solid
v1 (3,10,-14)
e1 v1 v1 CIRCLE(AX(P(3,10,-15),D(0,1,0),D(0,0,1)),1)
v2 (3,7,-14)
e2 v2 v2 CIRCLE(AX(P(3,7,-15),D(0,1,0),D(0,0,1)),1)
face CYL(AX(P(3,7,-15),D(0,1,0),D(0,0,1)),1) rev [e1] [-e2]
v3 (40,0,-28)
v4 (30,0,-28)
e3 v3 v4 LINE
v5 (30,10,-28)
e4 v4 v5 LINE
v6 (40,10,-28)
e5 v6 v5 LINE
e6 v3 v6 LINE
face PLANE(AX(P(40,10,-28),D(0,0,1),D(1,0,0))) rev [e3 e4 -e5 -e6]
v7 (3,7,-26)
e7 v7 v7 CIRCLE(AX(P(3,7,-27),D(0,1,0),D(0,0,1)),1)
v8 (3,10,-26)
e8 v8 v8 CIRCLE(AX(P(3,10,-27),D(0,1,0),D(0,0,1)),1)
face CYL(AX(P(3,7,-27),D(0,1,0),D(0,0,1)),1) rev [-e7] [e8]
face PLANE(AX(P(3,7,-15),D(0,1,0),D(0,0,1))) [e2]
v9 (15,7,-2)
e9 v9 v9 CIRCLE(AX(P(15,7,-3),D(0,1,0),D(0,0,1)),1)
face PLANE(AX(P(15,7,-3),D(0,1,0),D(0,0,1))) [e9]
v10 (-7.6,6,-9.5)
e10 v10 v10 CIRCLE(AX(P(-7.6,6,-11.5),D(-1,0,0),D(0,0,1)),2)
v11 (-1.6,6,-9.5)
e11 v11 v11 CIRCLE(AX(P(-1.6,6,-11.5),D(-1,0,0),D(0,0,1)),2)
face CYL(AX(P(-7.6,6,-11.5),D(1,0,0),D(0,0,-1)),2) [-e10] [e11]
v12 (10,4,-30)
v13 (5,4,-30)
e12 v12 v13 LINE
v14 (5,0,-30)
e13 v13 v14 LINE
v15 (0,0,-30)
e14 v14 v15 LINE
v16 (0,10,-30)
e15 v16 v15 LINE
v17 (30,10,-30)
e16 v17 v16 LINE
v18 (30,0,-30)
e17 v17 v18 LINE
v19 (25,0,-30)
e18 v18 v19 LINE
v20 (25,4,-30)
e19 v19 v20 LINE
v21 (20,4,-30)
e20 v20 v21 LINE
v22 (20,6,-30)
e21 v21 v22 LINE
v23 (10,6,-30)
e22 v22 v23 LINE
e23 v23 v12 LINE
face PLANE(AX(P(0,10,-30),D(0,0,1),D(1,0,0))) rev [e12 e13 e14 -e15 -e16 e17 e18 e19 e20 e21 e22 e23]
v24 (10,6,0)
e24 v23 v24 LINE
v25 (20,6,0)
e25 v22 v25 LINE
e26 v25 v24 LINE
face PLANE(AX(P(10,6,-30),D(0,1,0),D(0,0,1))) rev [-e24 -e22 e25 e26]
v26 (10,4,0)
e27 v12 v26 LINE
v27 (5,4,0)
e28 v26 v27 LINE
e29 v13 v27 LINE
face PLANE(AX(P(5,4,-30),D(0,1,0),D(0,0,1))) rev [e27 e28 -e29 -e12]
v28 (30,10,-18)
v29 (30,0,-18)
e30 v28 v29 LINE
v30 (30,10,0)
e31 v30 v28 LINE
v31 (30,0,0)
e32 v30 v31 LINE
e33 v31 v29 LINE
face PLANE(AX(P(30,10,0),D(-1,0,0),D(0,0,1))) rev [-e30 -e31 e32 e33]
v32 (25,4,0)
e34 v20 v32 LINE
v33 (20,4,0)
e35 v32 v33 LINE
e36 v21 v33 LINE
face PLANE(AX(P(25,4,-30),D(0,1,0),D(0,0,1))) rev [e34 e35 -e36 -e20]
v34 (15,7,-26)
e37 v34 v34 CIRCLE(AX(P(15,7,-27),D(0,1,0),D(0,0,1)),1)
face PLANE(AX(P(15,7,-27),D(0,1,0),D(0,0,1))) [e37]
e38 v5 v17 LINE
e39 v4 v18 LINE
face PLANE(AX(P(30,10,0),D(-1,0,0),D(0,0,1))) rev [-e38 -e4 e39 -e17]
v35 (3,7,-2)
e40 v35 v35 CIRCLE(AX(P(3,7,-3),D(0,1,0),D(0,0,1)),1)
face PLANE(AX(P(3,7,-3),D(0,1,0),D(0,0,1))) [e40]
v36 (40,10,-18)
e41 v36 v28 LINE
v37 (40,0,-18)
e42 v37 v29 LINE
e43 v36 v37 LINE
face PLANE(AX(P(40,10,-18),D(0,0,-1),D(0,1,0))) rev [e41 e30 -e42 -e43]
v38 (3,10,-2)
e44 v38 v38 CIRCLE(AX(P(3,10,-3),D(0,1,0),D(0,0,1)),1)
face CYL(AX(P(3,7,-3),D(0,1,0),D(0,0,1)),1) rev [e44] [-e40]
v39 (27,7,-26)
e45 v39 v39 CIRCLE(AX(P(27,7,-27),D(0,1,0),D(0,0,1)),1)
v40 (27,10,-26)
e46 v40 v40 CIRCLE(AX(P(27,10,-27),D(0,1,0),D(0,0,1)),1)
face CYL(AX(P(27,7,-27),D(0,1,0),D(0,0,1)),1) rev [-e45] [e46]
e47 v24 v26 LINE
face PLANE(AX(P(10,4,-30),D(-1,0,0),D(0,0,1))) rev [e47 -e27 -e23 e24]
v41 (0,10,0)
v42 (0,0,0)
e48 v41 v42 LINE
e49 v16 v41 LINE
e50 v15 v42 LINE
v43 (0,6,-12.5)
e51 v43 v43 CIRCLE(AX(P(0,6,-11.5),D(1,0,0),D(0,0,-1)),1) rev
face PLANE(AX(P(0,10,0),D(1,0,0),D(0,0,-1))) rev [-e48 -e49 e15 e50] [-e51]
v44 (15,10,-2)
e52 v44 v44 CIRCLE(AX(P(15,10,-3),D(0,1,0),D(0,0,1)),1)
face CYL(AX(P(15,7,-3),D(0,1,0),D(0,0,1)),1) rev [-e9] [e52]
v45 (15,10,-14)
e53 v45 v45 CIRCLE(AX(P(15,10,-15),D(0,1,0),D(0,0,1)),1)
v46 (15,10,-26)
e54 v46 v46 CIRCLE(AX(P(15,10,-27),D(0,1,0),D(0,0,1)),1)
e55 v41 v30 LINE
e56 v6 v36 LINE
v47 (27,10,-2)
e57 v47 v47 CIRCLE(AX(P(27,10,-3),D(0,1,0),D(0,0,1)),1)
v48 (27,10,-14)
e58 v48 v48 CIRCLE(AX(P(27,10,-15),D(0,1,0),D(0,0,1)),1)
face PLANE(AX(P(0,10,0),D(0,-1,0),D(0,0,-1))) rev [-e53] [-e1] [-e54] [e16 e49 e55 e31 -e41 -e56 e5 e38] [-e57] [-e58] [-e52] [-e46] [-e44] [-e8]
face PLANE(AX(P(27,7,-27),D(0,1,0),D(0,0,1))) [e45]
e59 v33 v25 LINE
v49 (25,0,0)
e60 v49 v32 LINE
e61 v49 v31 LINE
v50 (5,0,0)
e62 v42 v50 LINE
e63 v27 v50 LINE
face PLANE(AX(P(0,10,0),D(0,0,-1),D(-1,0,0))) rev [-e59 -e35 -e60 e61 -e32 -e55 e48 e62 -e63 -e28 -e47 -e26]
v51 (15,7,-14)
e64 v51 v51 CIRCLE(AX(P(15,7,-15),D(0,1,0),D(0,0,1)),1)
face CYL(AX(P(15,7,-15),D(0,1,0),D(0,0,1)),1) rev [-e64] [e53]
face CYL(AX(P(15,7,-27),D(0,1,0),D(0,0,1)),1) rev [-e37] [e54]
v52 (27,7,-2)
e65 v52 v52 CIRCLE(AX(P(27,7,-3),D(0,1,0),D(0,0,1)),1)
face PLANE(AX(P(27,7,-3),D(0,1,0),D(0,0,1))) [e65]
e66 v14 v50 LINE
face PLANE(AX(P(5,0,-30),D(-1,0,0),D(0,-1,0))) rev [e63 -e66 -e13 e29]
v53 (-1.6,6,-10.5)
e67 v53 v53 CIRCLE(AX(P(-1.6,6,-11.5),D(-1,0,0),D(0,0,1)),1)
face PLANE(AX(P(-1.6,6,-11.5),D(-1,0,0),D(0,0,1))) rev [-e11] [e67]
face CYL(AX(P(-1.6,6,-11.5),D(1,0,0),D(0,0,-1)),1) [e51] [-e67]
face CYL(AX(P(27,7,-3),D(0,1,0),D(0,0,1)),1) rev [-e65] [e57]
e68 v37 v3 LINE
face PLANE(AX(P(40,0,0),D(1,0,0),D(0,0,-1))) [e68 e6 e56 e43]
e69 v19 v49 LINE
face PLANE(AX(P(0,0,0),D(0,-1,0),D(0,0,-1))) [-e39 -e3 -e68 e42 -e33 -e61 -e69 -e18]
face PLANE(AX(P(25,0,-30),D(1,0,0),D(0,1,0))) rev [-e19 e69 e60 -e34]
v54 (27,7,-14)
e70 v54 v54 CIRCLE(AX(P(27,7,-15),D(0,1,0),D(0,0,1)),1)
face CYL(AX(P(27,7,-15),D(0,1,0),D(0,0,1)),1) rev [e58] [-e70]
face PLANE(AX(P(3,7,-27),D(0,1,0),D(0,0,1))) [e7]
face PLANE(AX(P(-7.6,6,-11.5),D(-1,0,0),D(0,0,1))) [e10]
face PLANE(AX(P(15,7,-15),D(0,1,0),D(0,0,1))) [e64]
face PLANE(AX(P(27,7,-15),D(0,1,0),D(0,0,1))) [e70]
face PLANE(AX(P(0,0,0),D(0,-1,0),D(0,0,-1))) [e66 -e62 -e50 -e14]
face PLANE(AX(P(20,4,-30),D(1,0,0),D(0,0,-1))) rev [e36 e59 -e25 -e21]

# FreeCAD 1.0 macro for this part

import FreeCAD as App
import Part
import Sketcher
from FreeCAD import Vector

doc = App.newDocument("Part")
params = doc.addObject("Spreadsheet::Sheet", "Params")
for row, (alias, value) in enumerate([
    ("sketch1_width", "30 mm"),
    ("pad1_length", "10 mm"),
    ("sketch2_width", "20 mm"),
    ("sketch2_width2", "5 mm"),
    ("sketch2_height", "4 mm"),
    ("sketch2_height2", "2 mm"),
    ("sketch3_diameter", "2 mm"),
    ("pocket2_length", "3 mm"),
    ("sketch4_width", "10 mm"),
    ("pad2_length", "10 mm"),
    ("sketch5_diameter", "2 mm"),
    ("pad3_length", "1.6 mm"),
    ("sketch6_diameter", "4 mm"),
    ("pad4_length", "6 mm"),
], start=1):
    params.set(f"A{row}", alias)
    params.set(f"B{row}", "=" + value)
    params.setAlias(f"B{row}", alias)

body = doc.addObject("PartDesign::Body", "Body")

sketch1 = body.newObject("Sketcher::SketchObject", "Sketch")
sketch1.AttachmentSupport = (doc.getObject("XZ_Plane"), [""])
sketch1.MapMode = "FlatFace"
sketch1.addGeometry([
    Part.LineSegment(Vector(0, -30, 0), Vector(0, 0, 0)),
    Part.LineSegment(Vector(0, 0, 0), Vector(30, 0, 0)),
    Part.LineSegment(Vector(30, 0, 0), Vector(30, -30, 0)),
    Part.LineSegment(Vector(30, -30, 0), Vector(0, -30, 0)),
], False)
sketch1.addConstraint([
    Sketcher.Constraint("Coincident", 0, 2, 1, 1),
    Sketcher.Constraint("Coincident", 1, 2, 2, 1),
    Sketcher.Constraint("Coincident", 2, 2, 3, 1),
    Sketcher.Constraint("Coincident", 3, 2, 0, 1),
    Sketcher.Constraint("Vertical", 0),
    Sketcher.Constraint("Horizontal", 1),
    Sketcher.Constraint("Vertical", 2),
    Sketcher.Constraint("Horizontal", 3),
    Sketcher.Constraint("Coincident", 0, 2, -1, 1),
    Sketcher.Constraint("Equal", 3, 0),
    Sketcher.Constraint("DistanceX", 1, 1, 1, 2, 30.0),
])
sketch1.setExpression("Constraints[10]", "Params.sketch1_width")
pad1 = body.newObject("PartDesign::Pad", "Pad")
pad1.Profile = sketch1
pad1.setExpression("Length", "Params.pad1_length")
pad1.Reversed = True

sketch2 = body.newObject("Sketcher::SketchObject", "Sketch001")
sketch2.AttachmentSupport = (doc.getObject("XY_Plane"), [""])
sketch2.MapMode = "FlatFace"
sketch2.addGeometry([
    Part.LineSegment(Vector(5, 4, 0), Vector(5, 0, 0)),
    Part.LineSegment(Vector(5, 0, 0), Vector(25, 0, 0)),
    Part.LineSegment(Vector(25, 0, 0), Vector(25, 4, 0)),
    Part.LineSegment(Vector(25, 4, 0), Vector(20, 4, 0)),
    Part.LineSegment(Vector(20, 4, 0), Vector(20, 6, 0)),
    Part.LineSegment(Vector(20, 6, 0), Vector(10, 6, 0)),
    Part.LineSegment(Vector(10, 6, 0), Vector(10, 4, 0)),
    Part.LineSegment(Vector(10, 4, 0), Vector(5, 4, 0)),
], False)
sketch2.addConstraint([
    Sketcher.Constraint("Coincident", 0, 2, 1, 1),
    Sketcher.Constraint("Coincident", 1, 2, 2, 1),
    Sketcher.Constraint("Coincident", 2, 2, 3, 1),
    Sketcher.Constraint("Coincident", 3, 2, 4, 1),
    Sketcher.Constraint("Coincident", 4, 2, 5, 1),
    Sketcher.Constraint("Coincident", 5, 2, 6, 1),
    Sketcher.Constraint("Coincident", 6, 2, 7, 1),
    Sketcher.Constraint("Coincident", 7, 2, 0, 1),
    Sketcher.Constraint("Vertical", 0),
    Sketcher.Constraint("Horizontal", 1),
    Sketcher.Constraint("Vertical", 2),
    Sketcher.Constraint("Horizontal", 3),
    Sketcher.Constraint("Vertical", 4),
    Sketcher.Constraint("Horizontal", 5),
    Sketcher.Constraint("Vertical", 6),
    Sketcher.Constraint("Horizontal", 7),
    Sketcher.Constraint("PointOnObject", 0, 2, -1),
    Sketcher.Constraint("Horizontal", 3, 2, 6, 2),
    Sketcher.Constraint("Equal", 3, 7),
    Sketcher.Constraint("DistanceX", 1, 1, 1, 2, 20.0),
    Sketcher.Constraint("DistanceX", 3, 2, 3, 1, 5.0),
    Sketcher.Constraint("DistanceY", 0, 2, 0, 1, 4.0),
    Sketcher.Constraint("DistanceY", 4, 1, 4, 2, 2.0),
    Sketcher.Constraint("DistanceX", -1, 1, 0, 2, 5.0),
])
sketch2.setExpression("Constraints[19]", "Params.sketch2_width")
sketch2.setExpression("Constraints[20]", "Params.sketch2_width2")
sketch2.setExpression("Constraints[21]", "Params.sketch2_height")
sketch2.setExpression("Constraints[22]", "Params.sketch2_height2")
pocket1 = body.newObject("PartDesign::Pocket", "Pocket")
pocket1.Profile = sketch2
pocket1.Type = "ThroughAll"

sketch3 = body.newObject("Sketcher::SketchObject", "Sketch002")
sketch3.AttachmentSupport = (doc.getObject("XZ_Plane"), [""])
sketch3.MapMode = "FlatFace"
sketch3.AttachmentOffset = App.Placement(Vector(0, 0, -10), App.Rotation())
sketch3.addGeometry([
    Part.Circle(Vector(3, -27, 0), Vector(0, 0, 1), 1),
    Part.Circle(Vector(15, -27, 0), Vector(0, 0, 1), 1),
    Part.Circle(Vector(27, -27, 0), Vector(0, 0, 1), 1),
    Part.Circle(Vector(27, -15, 0), Vector(0, 0, 1), 1),
    Part.Circle(Vector(27, -3, 0), Vector(0, 0, 1), 1),
    Part.Circle(Vector(15, -3, 0), Vector(0, 0, 1), 1),
    Part.Circle(Vector(3, -3, 0), Vector(0, 0, 1), 1),
    Part.Circle(Vector(3, -15, 0), Vector(0, 0, 1), 1),
    Part.Circle(Vector(15, -15, 0), Vector(0, 0, 1), 1),
], False)
sketch3.addConstraint([
    Sketcher.Constraint("Equal", 0, 1),
    Sketcher.Constraint("Equal", 1, 2),
    Sketcher.Constraint("Equal", 2, 3),
    Sketcher.Constraint("Equal", 3, 4),
    Sketcher.Constraint("Equal", 4, 5),
    Sketcher.Constraint("Equal", 5, 6),
    Sketcher.Constraint("Equal", 6, 7),
    Sketcher.Constraint("Equal", 7, 8),
    Sketcher.Constraint("Horizontal", 0, 3, 1, 3),
    Sketcher.Constraint("Horizontal", 1, 3, 2, 3),
    Sketcher.Constraint("Horizontal", 4, 3, 5, 3),
    Sketcher.Constraint("Horizontal", 5, 3, 6, 3),
    Sketcher.Constraint("Horizontal", 3, 3, 7, 3),
    Sketcher.Constraint("Horizontal", 7, 3, 8, 3),
    Sketcher.Constraint("Vertical", 2, 3, 3, 3),
    Sketcher.Constraint("Vertical", 3, 3, 4, 3),
    Sketcher.Constraint("Vertical", 1, 3, 5, 3),
    Sketcher.Constraint("Vertical", 0, 3, 6, 3),
    Sketcher.Constraint("Vertical", 6, 3, 7, 3),
    Sketcher.Constraint("Vertical", 5, 3, 8, 3),
    Sketcher.Constraint("Diameter", 0, 2.0),
    Sketcher.Constraint("DistanceX", -1, 1, 0, 3, 3.0),
    Sketcher.Constraint("DistanceY", 0, 3, -1, 1, 27.0),
    Sketcher.Constraint("DistanceX", -1, 1, 1, 3, 15.0),
    Sketcher.Constraint("DistanceX", -1, 1, 2, 3, 27.0),
    Sketcher.Constraint("DistanceY", 3, 3, -1, 1, 15.0),
    Sketcher.Constraint("DistanceY", 4, 3, -1, 1, 3.0),
])
sketch3.setExpression("Constraints[20]", "Params.sketch3_diameter")
pocket2 = body.newObject("PartDesign::Pocket", "Pocket001")
pocket2.Profile = sketch3
pocket2.setExpression("Length", "Params.pocket2_length")
pocket2.Reversed = True

sketch4 = body.newObject("Sketcher::SketchObject", "Sketch003")
sketch4.AttachmentSupport = (doc.getObject("YZ_Plane"), [""])
sketch4.MapMode = "FlatFace"
sketch4.AttachmentOffset = App.Placement(Vector(0, 0, 30), App.Rotation())
sketch4.addGeometry([
    Part.LineSegment(Vector(10, -18, 0), Vector(0, -18, 0)),
    Part.LineSegment(Vector(0, -18, 0), Vector(0, -28, 0)),
    Part.LineSegment(Vector(0, -28, 0), Vector(10, -28, 0)),
    Part.LineSegment(Vector(10, -28, 0), Vector(10, -18, 0)),
], False)
sketch4.addConstraint([
    Sketcher.Constraint("Coincident", 0, 2, 1, 1),
    Sketcher.Constraint("Coincident", 1, 2, 2, 1),
    Sketcher.Constraint("Coincident", 2, 2, 3, 1),
    Sketcher.Constraint("Coincident", 3, 2, 0, 1),
    Sketcher.Constraint("Horizontal", 0),
    Sketcher.Constraint("Vertical", 1),
    Sketcher.Constraint("Horizontal", 2),
    Sketcher.Constraint("Vertical", 3),
    Sketcher.Constraint("PointOnObject", 0, 2, -2),
    Sketcher.Constraint("Equal", 2, 1),
    Sketcher.Constraint("DistanceX", 0, 2, 0, 1, 10.0),
    Sketcher.Constraint("DistanceY", 0, 2, -1, 1, 18.0),
])
sketch4.setExpression("Constraints[10]", "Params.sketch4_width")
pad2 = body.newObject("PartDesign::Pad", "Pad001")
pad2.Profile = sketch4
pad2.setExpression("Length", "Params.pad2_length")

sketch5 = body.newObject("Sketcher::SketchObject", "Sketch004")
sketch5.AttachmentSupport = (doc.getObject("YZ_Plane"), [""])
sketch5.MapMode = "FlatFace"
sketch5.addGeometry(Part.Circle(Vector(6, -11.5, 0), Vector(0, 0, 1), 1), False)
sketch5.addConstraint([
    Sketcher.Constraint("Diameter", 0, 2.0),
    Sketcher.Constraint("DistanceX", -1, 1, 0, 3, 6.0),
    Sketcher.Constraint("DistanceY", 0, 3, -1, 1, 11.5),
])
sketch5.setExpression("Constraints[0]", "Params.sketch5_diameter")
pad3 = body.newObject("PartDesign::Pad", "Pad002")
pad3.Profile = sketch5
pad3.setExpression("Length", "Params.pad3_length")
pad3.Reversed = True

sketch6 = body.newObject("Sketcher::SketchObject", "Sketch005")
sketch6.AttachmentSupport = (doc.getObject("YZ_Plane"), [""])
sketch6.MapMode = "FlatFace"
sketch6.AttachmentOffset = App.Placement(Vector(0, 0, -1.6), App.Rotation())
sketch6.addGeometry(Part.Circle(Vector(6, -11.5, 0), Vector(0, 0, 1), 2), False)
sketch6.addConstraint([
    Sketcher.Constraint("Diameter", 0, 4.0),
    Sketcher.Constraint("DistanceX", -1, 1, 0, 3, 6.0),
    Sketcher.Constraint("DistanceY", 0, 3, -1, 1, 11.5),
])
sketch6.setExpression("Constraints[0]", "Params.sketch6_diameter")
pad4 = body.newObject("PartDesign::Pad", "Pad003")
pad4.Profile = sketch6
pad4.setExpression("Length", "Params.pad4_length")
pad4.Reversed = True

doc.recompute()
